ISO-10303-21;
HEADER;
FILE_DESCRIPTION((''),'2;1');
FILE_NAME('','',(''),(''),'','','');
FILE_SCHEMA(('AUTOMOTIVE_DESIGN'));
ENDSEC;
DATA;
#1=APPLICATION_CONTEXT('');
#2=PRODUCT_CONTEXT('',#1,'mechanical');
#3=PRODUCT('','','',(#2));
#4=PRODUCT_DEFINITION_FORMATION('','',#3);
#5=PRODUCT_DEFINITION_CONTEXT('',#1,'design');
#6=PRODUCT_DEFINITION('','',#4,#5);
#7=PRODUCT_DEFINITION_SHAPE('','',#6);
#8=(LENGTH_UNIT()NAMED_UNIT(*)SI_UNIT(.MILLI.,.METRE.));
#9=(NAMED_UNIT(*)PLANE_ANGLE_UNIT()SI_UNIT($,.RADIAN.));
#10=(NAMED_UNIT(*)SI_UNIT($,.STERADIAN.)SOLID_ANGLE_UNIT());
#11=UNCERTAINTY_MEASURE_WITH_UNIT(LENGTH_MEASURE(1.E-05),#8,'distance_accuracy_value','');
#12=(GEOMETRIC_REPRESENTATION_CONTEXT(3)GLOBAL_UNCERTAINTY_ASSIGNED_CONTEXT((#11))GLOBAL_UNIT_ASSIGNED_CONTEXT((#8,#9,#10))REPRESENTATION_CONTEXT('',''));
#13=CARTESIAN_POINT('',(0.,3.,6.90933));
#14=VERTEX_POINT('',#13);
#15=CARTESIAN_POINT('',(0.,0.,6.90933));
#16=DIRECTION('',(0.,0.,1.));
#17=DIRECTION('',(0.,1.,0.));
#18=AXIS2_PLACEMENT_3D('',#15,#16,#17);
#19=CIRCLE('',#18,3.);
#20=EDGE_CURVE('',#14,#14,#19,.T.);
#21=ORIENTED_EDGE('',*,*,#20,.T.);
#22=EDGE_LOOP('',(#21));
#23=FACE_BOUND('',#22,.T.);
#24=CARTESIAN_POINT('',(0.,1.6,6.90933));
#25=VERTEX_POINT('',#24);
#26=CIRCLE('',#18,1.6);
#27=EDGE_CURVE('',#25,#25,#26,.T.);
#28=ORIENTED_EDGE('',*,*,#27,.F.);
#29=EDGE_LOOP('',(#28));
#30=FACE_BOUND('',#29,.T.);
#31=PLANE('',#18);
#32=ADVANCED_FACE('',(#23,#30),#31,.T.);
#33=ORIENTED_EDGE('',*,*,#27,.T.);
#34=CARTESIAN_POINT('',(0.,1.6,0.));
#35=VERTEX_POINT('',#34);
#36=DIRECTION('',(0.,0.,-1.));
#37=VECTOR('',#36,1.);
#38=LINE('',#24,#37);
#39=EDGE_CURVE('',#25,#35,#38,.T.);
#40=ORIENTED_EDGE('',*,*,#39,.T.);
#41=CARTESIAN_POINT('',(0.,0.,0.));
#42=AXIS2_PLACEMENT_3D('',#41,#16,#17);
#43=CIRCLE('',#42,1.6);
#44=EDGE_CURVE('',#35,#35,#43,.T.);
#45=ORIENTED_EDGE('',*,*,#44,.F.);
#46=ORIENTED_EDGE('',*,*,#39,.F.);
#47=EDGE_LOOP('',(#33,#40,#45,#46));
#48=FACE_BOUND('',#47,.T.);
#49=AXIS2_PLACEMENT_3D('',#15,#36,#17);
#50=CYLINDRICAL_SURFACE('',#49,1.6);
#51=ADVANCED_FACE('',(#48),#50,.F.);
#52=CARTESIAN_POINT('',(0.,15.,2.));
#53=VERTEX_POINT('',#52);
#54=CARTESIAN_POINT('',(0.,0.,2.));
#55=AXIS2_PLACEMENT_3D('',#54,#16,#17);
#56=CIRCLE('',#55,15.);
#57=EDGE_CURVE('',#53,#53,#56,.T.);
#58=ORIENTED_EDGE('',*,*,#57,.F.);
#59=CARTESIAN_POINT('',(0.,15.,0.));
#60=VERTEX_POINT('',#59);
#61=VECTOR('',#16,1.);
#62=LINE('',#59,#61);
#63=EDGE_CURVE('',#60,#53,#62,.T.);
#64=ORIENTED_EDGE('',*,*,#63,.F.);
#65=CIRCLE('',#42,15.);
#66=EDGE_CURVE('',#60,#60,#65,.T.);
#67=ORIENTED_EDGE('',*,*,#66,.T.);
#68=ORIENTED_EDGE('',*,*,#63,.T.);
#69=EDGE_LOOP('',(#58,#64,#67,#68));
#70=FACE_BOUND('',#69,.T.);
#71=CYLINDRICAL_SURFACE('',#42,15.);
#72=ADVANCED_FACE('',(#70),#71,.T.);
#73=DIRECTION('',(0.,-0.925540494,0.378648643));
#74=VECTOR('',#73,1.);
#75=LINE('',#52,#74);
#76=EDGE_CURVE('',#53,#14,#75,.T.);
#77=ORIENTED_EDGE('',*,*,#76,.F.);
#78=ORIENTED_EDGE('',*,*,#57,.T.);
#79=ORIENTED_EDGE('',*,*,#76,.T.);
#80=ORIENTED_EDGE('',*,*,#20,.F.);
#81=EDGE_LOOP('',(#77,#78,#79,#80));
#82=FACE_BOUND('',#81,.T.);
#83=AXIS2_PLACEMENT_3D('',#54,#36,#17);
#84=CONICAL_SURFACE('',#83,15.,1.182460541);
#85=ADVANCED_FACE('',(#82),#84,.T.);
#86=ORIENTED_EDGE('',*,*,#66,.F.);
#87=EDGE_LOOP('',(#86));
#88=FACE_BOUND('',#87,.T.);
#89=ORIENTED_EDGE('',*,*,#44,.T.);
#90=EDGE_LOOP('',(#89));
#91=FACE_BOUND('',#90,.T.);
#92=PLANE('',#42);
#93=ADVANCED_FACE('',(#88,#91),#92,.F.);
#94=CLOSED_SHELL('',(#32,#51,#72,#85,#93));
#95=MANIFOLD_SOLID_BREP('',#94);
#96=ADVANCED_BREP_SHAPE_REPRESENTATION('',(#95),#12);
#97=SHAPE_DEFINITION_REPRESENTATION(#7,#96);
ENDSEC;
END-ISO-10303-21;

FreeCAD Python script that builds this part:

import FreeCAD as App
import Part
import Sketcher

V = App.Vector
Q = App.Units.Quantity

doc = App.newDocument("Part")
body = doc.addObject("PartDesign::Body", "Body")

sketch1 = body.newObject("Sketcher::SketchObject", "Sketch")
sketch1.AttachmentSupport = (doc.getObject("YZ_Plane"), [""])
sketch1.MapMode = "FlatFace"
sketch1.addGeometry(Part.LineSegment(V(1.6, 6.9, 0), V(1.6, 0, 0)), False)
sketch1.addGeometry(Part.LineSegment(V(1.6, 0, 0), V(15, 0, 0)), False)
sketch1.addGeometry(Part.LineSegment(V(15, 0, 0), V(15, 2, 0)), False)
sketch1.addGeometry(Part.LineSegment(V(15, 2, 0), V(3, 6.9, 0)), False)
sketch1.addGeometry(Part.LineSegment(V(3, 6.9, 0), V(1.6, 6.9, 0)), False)
sketch1.addConstraint(Sketcher.Constraint("Coincident", 0, 2, 1, 1))
sketch1.addConstraint(Sketcher.Constraint("Coincident", 1, 2, 2, 1))
sketch1.addConstraint(Sketcher.Constraint("Coincident", 2, 2, 3, 1))
sketch1.addConstraint(Sketcher.Constraint("Coincident", 3, 2, 4, 1))
sketch1.addConstraint(Sketcher.Constraint("Coincident", 4, 2, 0, 1))
sketch1.addConstraint(Sketcher.Constraint("Vertical", 0))
sketch1.addConstraint(Sketcher.Constraint("Horizontal", 1))
sketch1.addConstraint(Sketcher.Constraint("Vertical", 2))
sketch1.addConstraint(Sketcher.Constraint("Horizontal", 4))
sketch1.addConstraint(Sketcher.Constraint("PointOnObject", 0, 2, -1))
sketch1.addConstraint(Sketcher.Constraint("DistanceY", 2, 1, 2, 2, Q("2 mm")))
sketch1.addConstraint(Sketcher.Constraint("DistanceX", 1, 1, 1, 2, Q("13.4 mm")))
sketch1.addConstraint(Sketcher.Constraint("DistanceX", 4, 2, 4, 1, Q("1.4 mm")))
sketch1.addConstraint(Sketcher.Constraint("DistanceX", -1, 1, 1, 2, Q("15 mm")))
sketch1.addConstraint(Sketcher.Constraint("Angle", 3, Q("157.749998 deg")))
revolution = body.newObject("PartDesign::Revolution", "Revolution")
revolution.Profile = sketch1
revolution.ReferenceAxis = (sketch1, ["V_Axis"])
revolution.Angle = 360

doc.recompute()
